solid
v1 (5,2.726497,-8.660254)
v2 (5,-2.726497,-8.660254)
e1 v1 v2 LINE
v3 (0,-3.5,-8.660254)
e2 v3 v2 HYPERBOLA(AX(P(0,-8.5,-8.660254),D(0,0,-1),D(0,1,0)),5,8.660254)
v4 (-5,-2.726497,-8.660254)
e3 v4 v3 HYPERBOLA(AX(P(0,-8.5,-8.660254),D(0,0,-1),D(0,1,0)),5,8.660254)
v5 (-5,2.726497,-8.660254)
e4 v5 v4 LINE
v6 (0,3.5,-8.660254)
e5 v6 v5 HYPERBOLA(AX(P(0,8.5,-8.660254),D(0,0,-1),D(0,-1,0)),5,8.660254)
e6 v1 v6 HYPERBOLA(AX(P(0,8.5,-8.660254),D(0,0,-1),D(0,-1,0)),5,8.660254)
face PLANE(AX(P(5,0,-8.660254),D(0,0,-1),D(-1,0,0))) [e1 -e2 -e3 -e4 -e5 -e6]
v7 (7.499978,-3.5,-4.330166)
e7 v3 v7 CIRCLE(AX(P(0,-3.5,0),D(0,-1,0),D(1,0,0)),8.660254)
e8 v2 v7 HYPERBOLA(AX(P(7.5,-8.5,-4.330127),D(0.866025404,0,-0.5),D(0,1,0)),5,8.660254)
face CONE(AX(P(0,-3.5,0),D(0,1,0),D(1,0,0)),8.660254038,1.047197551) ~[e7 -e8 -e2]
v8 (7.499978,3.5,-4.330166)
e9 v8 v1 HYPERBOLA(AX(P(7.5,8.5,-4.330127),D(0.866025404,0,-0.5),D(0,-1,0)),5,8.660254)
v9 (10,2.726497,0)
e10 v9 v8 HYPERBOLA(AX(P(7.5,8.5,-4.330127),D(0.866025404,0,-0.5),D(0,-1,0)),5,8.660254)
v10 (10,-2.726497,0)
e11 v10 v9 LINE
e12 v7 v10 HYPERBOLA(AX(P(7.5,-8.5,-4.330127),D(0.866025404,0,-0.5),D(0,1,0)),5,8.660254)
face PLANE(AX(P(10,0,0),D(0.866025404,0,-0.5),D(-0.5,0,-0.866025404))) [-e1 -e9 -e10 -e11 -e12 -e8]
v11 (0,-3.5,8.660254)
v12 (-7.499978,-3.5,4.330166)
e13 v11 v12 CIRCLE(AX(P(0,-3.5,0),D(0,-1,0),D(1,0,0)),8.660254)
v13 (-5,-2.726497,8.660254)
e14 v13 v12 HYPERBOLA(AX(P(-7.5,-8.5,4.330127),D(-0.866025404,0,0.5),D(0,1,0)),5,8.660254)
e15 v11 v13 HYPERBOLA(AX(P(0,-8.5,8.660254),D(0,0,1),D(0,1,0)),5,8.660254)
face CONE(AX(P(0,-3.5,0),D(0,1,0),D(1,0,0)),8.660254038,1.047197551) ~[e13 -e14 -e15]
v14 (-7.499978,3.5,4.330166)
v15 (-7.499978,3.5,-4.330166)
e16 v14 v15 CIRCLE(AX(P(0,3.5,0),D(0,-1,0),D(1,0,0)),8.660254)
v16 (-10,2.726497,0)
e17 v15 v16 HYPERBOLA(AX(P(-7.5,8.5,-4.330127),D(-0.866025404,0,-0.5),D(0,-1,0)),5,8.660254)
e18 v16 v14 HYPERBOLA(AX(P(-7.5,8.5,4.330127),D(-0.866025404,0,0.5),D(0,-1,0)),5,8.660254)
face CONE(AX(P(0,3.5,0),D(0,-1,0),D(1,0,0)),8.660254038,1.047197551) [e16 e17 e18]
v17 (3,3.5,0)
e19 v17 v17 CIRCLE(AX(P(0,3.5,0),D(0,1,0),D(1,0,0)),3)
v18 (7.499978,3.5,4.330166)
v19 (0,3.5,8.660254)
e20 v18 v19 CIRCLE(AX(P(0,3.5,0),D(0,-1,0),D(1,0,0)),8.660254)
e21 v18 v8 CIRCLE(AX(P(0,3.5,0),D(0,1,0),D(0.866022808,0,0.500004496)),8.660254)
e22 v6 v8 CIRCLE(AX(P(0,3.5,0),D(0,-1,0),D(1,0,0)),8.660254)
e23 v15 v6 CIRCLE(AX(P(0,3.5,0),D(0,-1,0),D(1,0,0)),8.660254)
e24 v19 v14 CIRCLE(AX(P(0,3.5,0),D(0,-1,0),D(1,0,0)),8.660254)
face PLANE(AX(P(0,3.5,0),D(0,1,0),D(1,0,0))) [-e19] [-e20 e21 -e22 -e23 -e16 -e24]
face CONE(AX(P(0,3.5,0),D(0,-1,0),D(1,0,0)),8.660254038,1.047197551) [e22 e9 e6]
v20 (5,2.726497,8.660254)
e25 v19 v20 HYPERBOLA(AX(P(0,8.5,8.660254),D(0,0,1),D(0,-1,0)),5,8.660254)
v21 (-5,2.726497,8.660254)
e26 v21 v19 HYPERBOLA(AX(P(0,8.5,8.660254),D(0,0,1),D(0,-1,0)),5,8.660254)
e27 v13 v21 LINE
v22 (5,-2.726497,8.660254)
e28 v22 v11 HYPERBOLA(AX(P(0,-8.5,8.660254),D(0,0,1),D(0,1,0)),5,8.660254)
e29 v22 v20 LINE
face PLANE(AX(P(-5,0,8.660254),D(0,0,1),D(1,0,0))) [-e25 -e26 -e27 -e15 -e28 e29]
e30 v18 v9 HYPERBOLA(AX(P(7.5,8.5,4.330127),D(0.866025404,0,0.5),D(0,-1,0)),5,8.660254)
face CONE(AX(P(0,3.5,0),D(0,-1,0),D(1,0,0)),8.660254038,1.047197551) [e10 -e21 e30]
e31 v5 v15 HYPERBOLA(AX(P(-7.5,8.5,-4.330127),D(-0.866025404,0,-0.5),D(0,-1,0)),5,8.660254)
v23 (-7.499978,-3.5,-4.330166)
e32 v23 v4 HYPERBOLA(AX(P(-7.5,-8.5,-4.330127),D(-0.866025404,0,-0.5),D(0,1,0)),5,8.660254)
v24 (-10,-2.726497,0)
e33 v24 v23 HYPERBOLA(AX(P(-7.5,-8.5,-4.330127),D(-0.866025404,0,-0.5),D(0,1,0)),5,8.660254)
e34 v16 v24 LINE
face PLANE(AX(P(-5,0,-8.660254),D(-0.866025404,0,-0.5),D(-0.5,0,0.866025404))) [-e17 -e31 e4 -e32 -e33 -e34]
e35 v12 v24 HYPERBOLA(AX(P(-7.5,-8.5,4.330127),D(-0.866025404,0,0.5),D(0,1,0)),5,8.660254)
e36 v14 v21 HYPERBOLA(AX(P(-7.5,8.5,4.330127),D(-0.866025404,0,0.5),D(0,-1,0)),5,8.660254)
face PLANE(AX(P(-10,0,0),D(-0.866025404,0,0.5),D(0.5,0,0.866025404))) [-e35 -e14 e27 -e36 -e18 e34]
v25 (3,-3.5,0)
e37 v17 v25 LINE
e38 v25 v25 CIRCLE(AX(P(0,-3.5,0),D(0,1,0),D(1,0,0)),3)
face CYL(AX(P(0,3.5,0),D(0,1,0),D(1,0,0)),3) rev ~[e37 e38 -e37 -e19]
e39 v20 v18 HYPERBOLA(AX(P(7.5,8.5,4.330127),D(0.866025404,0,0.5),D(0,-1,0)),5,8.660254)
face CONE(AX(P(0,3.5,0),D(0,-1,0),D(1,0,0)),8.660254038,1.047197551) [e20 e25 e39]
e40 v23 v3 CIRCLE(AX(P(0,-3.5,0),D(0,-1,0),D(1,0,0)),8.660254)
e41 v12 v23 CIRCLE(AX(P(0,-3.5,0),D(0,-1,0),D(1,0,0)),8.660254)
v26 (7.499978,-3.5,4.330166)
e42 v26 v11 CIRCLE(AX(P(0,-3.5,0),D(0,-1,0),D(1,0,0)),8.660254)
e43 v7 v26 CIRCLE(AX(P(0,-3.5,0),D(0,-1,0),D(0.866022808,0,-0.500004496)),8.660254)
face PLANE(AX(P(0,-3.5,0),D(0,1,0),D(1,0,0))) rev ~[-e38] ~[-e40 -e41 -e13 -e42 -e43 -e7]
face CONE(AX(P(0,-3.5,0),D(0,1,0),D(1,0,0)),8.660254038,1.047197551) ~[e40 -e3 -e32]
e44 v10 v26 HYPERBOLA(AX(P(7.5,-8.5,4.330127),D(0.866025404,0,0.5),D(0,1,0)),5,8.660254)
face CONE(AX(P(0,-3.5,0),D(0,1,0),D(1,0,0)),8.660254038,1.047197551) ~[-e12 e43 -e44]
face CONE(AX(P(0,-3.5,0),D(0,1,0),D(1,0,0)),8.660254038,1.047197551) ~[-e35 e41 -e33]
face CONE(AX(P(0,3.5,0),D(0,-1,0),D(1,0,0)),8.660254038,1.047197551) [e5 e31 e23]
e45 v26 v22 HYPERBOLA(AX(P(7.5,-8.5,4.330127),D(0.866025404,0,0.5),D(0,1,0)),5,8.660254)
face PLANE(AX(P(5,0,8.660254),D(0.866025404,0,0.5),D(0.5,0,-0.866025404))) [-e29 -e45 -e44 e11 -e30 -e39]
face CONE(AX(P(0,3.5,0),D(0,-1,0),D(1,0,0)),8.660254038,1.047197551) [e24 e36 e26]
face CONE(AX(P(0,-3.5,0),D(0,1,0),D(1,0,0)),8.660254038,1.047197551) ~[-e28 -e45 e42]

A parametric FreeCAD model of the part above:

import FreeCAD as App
import Part
import Sketcher

V = App.Vector
Q = App.Units.Quantity


def add_polygon(sketch, points):
    """Adds a closed chain of lines whose ends are joined by coincident constraints."""
    first, n = sketch.GeometryCount, len(points)
    for a, b in zip(points, points[1:] + points[:1]):
        sketch.addGeometry(Part.LineSegment(App.Vector(*a, 0), App.Vector(*b, 0)), False)
    for i in range(n):
        sketch.addConstraint(Sketcher.Constraint("Coincident", first + i, 2, first + (i + 1) % n, 1))

doc = App.newDocument("Part")
body = doc.addObject("PartDesign::Body", "Body")

# Sketch on XZ plane
sketch1 = body.newObject("Sketcher::SketchObject", "Sketch")
sketch1.AttachmentSupport = (doc.getObject("XZ_Plane"), [""])
sketch1.MapMode = "FlatFace"
add_polygon(sketch1, [(-10, 0), (-5, 9), (5, 9), (10, 0), (5, -9), (-5, -9)])  # lines 0-5
sketch1.addConstraint([
    Sketcher.Constraint("Horizontal", 1),
    Sketcher.Constraint("Horizontal", 4),
    Sketcher.Constraint("Symmetric", 0, 2, 3, 2, -1, 1),
    Sketcher.Constraint("Symmetric", 2, 2, 5, 2, -1, 1),
    Sketcher.Constraint("PointOnObject", 2, 2, -1),
    Sketcher.Constraint("Parallel", 2, 5),
    Sketcher.Constraint("Vertical", 1, 2, 3, 2),
    Sketcher.Constraint("DistanceX", 1, 1, 1, 2, Q("10 mm")),
    Sketcher.Constraint("Angle", 0, Q("60 deg")),
    Sketcher.Constraint("Distance", 0, Q("10 mm")),
])
pad1 = body.newObject("PartDesign::Pad", "Pad")
pad1.Profile = sketch1
pad1.Length = 7
pad1.Midplane = True

# Sketch on XZ plane
sketch2 = body.newObject("Sketcher::SketchObject", "Sketch001")
sketch2.AttachmentSupport = (doc.getObject("XZ_Plane"), [""])
sketch2.MapMode = "FlatFace"
sketch2.AttachmentOffset = App.Placement(V(0, 0, -3.5), App.Rotation())
add_polygon(sketch2, [(-26, -25), (-26, 25), (26, 25), (26, -25)])  # lines 0-3
sketch2.addGeometry(Part.Circle(V(0, 0, 0), V(0, 0, 1), 9), False)  # 4
sketch2.addConstraint([
    Sketcher.Constraint("Vertical", 0),
    Sketcher.Constraint("Horizontal", 1),
    Sketcher.Constraint("Vertical", 2),
    Sketcher.Constraint("Horizontal", 3),
    Sketcher.Constraint("Coincident", 4, 3, -1, 1),
    Sketcher.Constraint("Symmetric", 0, 2, 2, 2, -1, 1),
    Sketcher.Constraint("Diameter", 4, Q("17.320508 mm")),
    Sketcher.Constraint("DistanceX", 1, 1, 1, 2, Q("51.722 mm")),
    Sketcher.Constraint("DistanceY", 0, 1, 0, 2, Q("49.042 mm")),
])
pocket1 = body.newObject("PartDesign::Pocket", "Pocket")
pocket1.Profile = sketch2
pocket1.Length = 7
pocket1.Reversed = True
pocket1.TaperAngle = 60
doc.recompute()

mirrored = body.newObject("PartDesign::Mirrored", "Mirrored")
mirrored.Originals = [pocket1]
mirrored.MirrorPlane = (doc.getObject("XZ_Plane"), [""])
body.Tip = mirrored

# Sketch on XZ plane
sketch3 = body.newObject("Sketcher::SketchObject", "Sketch002")
sketch3.AttachmentSupport = (doc.getObject("XZ_Plane"), [""])
sketch3.MapMode = "FlatFace"
sketch3.AttachmentOffset = App.Placement(V(0, 0, -3.5), App.Rotation())
sketch3.addGeometry(Part.Circle(V(0, 0, 0), V(0, 0, 1), 3), False)
sketch3.addConstraint([
    Sketcher.Constraint("Coincident", 0, 3, -1, 1),
    Sketcher.Constraint("Diameter", 0, Q("6 mm")),
])
pocket2 = body.newObject("PartDesign::Pocket", "Pocket001")
pocket2.Profile = sketch3
pocket2.Type = "ThroughAll"
pocket2.Reversed = True

doc.recompute()
